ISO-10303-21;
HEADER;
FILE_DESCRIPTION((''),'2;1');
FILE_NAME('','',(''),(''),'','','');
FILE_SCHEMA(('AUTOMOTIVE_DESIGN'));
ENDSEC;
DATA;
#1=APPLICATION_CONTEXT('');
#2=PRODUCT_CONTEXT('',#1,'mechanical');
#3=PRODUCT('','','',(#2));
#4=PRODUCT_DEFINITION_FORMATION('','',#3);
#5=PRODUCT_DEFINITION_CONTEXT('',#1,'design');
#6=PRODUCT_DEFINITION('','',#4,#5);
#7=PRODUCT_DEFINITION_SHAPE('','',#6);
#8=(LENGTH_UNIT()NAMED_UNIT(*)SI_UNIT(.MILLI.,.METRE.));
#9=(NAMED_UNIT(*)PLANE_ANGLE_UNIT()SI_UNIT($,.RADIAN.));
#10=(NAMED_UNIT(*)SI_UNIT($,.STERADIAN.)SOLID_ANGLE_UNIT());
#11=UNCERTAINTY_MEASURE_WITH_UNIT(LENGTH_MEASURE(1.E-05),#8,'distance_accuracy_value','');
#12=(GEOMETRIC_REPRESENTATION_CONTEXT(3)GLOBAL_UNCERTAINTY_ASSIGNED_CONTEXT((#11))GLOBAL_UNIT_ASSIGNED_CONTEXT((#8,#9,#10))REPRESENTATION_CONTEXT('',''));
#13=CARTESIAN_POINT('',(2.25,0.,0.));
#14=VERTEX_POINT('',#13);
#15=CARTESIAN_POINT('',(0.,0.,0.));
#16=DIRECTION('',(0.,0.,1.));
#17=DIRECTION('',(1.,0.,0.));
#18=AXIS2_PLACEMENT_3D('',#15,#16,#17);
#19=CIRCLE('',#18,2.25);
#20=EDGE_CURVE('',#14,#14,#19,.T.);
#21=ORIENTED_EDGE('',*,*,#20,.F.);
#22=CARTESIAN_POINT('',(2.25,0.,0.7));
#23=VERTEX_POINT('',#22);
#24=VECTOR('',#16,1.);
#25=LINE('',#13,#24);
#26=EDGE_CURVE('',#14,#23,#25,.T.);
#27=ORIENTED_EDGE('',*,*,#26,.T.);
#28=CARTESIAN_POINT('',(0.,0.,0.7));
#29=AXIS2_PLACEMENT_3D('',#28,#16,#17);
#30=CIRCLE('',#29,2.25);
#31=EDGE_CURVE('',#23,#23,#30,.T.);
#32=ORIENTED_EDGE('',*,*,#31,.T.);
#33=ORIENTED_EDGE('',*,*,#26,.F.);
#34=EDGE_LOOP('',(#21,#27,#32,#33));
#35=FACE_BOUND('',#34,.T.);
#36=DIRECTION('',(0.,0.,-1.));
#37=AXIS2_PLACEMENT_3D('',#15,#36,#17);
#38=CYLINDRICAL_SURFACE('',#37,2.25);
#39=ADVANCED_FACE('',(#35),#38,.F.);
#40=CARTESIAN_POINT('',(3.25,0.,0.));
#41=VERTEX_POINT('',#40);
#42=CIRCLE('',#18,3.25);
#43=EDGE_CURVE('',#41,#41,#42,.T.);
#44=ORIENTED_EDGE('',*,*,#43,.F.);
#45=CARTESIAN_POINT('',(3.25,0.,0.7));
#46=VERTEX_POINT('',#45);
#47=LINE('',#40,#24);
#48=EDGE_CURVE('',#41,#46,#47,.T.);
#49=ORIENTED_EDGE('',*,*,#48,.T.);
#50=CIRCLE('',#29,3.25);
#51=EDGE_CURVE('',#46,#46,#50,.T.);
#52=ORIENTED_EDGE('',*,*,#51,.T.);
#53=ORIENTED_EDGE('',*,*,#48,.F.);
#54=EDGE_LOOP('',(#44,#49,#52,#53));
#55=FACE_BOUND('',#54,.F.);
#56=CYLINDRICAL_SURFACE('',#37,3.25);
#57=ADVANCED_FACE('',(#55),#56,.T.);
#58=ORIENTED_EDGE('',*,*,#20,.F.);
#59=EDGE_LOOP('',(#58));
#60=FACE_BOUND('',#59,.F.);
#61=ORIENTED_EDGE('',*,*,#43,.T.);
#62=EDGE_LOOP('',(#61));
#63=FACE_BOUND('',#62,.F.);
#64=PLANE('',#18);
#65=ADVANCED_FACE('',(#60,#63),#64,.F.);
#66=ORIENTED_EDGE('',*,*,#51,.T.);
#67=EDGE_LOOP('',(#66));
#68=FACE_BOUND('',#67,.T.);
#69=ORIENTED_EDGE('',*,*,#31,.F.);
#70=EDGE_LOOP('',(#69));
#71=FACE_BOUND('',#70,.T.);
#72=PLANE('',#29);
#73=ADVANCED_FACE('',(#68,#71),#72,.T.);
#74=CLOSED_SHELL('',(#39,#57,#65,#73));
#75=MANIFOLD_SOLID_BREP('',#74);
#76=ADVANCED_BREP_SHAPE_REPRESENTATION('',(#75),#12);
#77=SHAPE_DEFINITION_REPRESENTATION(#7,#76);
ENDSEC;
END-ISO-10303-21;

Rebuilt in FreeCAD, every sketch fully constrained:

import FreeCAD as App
import Part
import Sketcher
Q = App.Units.Quantity

doc = App.newDocument("Part")
body = doc.addObject("PartDesign::Body", "Body")

# Sketch on XY plane
sketch1 = body.newObject("Sketcher::SketchObject", "Sketch")
sketch1.AttachmentSupport = (doc.getObject("XY_Plane"), [""])
sketch1.MapMode = "FlatFace"
sketch1.addGeometry([
    Part.Circle(App.Vector(0, 0, 0), App.Vector(0, 0, 1), 3.2),
    Part.Circle(App.Vector(0, 0, 0), App.Vector(0, 0, 1), 2.2),
], False)
sketch1.addConstraint([
    Sketcher.Constraint("Coincident", 0, 3, -1, 1),
    Sketcher.Constraint("Coincident", 1, 3, -1, 1),
    Sketcher.Constraint("Diameter", 0, Q("6.5 mm")),
    Sketcher.Constraint("Diameter", 1, Q("4.5 mm")),
])
pad1 = body.newObject("PartDesign::Pad", "Pad")
pad1.Profile = sketch1
pad1.Length = 0.7

doc.recompute()
